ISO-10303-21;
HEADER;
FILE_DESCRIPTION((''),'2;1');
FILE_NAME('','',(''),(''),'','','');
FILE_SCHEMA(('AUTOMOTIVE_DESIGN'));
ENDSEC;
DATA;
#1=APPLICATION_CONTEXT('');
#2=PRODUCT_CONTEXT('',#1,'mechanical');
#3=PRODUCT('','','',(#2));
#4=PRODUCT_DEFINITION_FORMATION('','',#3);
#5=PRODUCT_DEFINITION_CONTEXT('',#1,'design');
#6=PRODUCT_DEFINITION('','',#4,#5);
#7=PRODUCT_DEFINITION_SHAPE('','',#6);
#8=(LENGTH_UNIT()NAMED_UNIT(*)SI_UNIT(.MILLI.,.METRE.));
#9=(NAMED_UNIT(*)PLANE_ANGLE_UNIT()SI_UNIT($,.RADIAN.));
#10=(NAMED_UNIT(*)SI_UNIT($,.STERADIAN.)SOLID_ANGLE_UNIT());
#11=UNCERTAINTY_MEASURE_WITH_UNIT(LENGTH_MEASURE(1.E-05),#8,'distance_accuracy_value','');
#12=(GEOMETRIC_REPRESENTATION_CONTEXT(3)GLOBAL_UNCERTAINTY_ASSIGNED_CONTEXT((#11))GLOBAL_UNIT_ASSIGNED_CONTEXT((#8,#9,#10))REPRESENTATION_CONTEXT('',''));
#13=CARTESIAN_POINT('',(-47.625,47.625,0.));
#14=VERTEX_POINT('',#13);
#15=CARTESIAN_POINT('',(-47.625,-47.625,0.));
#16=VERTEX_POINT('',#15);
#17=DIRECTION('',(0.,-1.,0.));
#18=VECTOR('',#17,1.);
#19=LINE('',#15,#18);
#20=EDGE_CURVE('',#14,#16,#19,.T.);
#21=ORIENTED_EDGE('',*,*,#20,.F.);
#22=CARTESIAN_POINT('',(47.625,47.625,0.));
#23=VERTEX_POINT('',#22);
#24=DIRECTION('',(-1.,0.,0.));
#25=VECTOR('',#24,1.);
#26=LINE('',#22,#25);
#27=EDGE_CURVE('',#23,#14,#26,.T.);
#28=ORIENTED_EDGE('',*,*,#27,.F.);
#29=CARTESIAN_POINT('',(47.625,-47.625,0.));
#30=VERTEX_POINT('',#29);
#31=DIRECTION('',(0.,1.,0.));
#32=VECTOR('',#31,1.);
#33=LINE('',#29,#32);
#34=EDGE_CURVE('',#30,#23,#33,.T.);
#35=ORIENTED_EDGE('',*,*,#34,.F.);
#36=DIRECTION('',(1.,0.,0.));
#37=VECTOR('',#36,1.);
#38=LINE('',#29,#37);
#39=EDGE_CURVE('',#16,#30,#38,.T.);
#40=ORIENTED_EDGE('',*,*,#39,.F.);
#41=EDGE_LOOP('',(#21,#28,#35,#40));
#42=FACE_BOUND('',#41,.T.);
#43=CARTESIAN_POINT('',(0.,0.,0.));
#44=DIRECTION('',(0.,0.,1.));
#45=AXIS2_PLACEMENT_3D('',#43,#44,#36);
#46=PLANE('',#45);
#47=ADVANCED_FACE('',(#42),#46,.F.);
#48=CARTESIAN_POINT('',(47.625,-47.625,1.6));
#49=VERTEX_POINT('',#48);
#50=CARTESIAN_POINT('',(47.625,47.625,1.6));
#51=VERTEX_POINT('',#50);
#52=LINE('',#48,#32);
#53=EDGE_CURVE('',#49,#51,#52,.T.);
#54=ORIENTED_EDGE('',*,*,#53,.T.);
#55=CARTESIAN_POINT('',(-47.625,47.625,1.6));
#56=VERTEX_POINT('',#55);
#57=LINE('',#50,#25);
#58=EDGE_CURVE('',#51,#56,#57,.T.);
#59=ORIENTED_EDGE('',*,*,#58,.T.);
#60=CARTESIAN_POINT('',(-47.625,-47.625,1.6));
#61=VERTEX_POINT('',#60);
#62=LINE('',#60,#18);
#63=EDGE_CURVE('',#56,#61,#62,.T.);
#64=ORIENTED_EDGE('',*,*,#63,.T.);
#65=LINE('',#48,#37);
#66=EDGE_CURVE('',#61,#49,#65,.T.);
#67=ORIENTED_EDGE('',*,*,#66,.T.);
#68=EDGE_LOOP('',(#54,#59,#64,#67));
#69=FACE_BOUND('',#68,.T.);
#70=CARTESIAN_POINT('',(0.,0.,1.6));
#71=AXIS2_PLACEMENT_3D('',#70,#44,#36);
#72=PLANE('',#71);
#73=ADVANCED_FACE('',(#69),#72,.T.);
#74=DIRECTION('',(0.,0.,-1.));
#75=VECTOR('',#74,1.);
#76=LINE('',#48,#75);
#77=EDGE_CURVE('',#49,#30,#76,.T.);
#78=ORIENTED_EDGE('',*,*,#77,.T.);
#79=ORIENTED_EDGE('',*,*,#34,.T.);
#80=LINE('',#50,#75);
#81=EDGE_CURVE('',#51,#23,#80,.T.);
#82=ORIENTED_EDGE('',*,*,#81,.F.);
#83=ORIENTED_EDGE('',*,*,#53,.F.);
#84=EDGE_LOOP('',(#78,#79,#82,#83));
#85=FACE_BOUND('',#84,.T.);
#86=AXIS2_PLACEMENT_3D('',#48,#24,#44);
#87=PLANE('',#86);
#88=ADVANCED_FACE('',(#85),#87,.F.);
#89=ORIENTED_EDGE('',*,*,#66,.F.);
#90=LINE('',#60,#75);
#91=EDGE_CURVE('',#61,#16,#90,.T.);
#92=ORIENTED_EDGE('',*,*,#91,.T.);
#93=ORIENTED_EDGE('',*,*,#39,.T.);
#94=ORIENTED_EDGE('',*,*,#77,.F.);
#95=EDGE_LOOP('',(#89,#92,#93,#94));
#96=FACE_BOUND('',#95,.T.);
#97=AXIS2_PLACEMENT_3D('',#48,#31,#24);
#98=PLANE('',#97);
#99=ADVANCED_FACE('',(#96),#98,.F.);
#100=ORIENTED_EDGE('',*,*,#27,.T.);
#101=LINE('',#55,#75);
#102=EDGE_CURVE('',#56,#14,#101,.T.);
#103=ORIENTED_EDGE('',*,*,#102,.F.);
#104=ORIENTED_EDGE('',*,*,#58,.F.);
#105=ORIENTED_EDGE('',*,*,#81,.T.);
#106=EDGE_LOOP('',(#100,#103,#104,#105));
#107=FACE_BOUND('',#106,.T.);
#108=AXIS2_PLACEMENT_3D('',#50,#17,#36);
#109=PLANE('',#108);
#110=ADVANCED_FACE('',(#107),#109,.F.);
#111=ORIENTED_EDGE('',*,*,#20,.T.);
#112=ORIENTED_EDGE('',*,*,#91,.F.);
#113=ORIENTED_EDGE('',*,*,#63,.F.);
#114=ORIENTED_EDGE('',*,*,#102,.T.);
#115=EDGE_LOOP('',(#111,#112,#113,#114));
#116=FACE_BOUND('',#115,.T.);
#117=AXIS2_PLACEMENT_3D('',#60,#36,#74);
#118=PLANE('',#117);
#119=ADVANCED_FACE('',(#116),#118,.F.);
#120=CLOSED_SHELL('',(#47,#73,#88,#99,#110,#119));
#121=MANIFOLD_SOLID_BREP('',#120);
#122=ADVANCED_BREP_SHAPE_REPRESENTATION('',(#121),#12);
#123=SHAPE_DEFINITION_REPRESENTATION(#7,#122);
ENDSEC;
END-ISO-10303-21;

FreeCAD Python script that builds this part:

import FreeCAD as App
import Part
import Sketcher

V = App.Vector
Q = App.Units.Quantity


def add_polygon(sketch, points):
    """Adds a closed chain of lines whose ends are joined by coincident constraints."""
    first, n = sketch.GeometryCount, len(points)
    for a, b in zip(points, points[1:] + points[:1]):
        sketch.addGeometry(Part.LineSegment(App.Vector(*a, 0), App.Vector(*b, 0)), False)
    for i in range(n):
        sketch.addConstraint(Sketcher.Constraint("Coincident", first + i, 2, first + (i + 1) % n, 1))

doc = App.newDocument("Part")
body = doc.addObject("PartDesign::Body", "Body")

# Sketch on XY plane
sketch1 = body.newObject("Sketcher::SketchObject", "Sketch")
sketch1.AttachmentSupport = (doc.getObject("XY_Plane"), [""])
sketch1.MapMode = "FlatFace"
add_polygon(sketch1, [(-47.625, 47.625), (-47.625, -47.625), (47.625, -47.625), (47.625, 47.625)])  # lines 0-3
sketch1.addConstraint([
    Sketcher.Constraint("Vertical", 0),
    Sketcher.Constraint("Horizontal", 1),
    Sketcher.Constraint("Vertical", 2),
    Sketcher.Constraint("Horizontal", 3),
    Sketcher.Constraint("Symmetric", 0, 2, 2, 2, -1, 1),
    Sketcher.Constraint("Equal", 3, 0),
    Sketcher.Constraint("DistanceX", 1, 1, 1, 2, Q("95.25 mm")),
])
pad1 = body.newObject("PartDesign::Pad", "Pad")
pad1.Profile = sketch1
pad1.Length = 1.6

doc.recompute()
